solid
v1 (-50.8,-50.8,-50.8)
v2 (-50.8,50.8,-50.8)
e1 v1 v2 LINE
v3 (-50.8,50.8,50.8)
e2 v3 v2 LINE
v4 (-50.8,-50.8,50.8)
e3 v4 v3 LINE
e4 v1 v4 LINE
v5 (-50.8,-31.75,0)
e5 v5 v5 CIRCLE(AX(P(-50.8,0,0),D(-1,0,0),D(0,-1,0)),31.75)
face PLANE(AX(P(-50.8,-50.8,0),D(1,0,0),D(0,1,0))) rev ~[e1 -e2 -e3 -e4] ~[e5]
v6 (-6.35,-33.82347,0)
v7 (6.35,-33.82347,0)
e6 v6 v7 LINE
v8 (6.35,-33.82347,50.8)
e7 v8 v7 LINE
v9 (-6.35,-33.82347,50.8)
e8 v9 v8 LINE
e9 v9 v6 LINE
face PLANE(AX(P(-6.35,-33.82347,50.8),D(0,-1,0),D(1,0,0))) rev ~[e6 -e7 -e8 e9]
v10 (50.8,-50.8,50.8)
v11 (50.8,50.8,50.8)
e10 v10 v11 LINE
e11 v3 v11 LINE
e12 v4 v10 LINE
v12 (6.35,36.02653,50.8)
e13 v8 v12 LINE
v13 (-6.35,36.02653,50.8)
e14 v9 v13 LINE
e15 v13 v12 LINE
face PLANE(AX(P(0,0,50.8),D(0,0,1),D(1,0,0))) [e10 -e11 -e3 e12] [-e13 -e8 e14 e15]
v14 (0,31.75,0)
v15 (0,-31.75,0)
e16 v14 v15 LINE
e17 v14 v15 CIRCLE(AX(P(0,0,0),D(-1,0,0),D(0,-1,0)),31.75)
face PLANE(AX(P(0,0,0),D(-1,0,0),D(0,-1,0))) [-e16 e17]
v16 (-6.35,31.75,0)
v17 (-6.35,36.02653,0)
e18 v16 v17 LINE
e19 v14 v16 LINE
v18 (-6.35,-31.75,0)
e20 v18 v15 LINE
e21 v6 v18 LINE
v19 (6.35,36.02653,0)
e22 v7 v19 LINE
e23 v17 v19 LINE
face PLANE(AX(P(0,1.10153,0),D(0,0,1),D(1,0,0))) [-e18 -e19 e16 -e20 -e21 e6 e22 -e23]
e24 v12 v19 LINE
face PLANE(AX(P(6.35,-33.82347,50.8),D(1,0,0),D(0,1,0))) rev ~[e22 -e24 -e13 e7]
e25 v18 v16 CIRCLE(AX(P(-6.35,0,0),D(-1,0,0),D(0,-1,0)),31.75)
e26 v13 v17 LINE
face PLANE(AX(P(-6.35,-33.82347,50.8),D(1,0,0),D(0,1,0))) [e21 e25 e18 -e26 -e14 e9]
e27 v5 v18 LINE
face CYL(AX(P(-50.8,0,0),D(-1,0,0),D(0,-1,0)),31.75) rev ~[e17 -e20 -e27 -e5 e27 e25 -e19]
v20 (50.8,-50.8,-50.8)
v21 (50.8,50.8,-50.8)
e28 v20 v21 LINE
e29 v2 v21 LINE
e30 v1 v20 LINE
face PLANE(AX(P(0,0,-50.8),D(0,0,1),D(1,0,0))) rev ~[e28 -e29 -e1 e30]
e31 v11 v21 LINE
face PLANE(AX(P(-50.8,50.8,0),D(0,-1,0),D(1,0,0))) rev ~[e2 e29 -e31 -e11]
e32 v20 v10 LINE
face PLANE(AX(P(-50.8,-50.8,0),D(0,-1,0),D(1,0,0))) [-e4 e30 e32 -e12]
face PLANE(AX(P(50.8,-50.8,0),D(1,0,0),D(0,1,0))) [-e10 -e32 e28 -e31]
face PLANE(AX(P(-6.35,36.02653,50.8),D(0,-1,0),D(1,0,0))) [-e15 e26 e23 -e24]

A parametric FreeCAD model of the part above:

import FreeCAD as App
import Part
import Sketcher
from FreeCAD import Vector
Q = App.Units.Quantity

doc = App.newDocument("Part")
body = doc.addObject("PartDesign::Body", "Body")

sketch1 = body.newObject("Sketcher::SketchObject", "Sketch")
sketch1.AttachmentSupport = (doc.getObject("XY_Plane"), [""])
sketch1.MapMode = "FlatFace"
sketch1.addGeometry([
    Part.LineSegment(Vector(-51, 51, 0), Vector(-51, -51, 0)),
    Part.LineSegment(Vector(-51, -51, 0), Vector(51, -51, 0)),
    Part.LineSegment(Vector(51, -51, 0), Vector(51, 51, 0)),
    Part.LineSegment(Vector(51, 51, 0), Vector(-51, 51, 0)),
], False)
sketch1.addConstraint([
    Sketcher.Constraint("Coincident", 0, 2, 1, 1),
    Sketcher.Constraint("Coincident", 1, 2, 2, 1),
    Sketcher.Constraint("Coincident", 2, 2, 3, 1),
    Sketcher.Constraint("Coincident", 3, 2, 0, 1),
    Sketcher.Constraint("Vertical", 0),
    Sketcher.Constraint("Horizontal", 1),
    Sketcher.Constraint("Vertical", 2),
    Sketcher.Constraint("Horizontal", 3),
    Sketcher.Constraint("Symmetric", 0, 2, 2, 2, -1, 1),
    Sketcher.Constraint("Equal", 3, 0),
    Sketcher.Constraint("DistanceX", 1, 1, 1, 2, Q("4 in")),
])
pad1 = body.newObject("PartDesign::Pad", "Pad")
pad1.Profile = sketch1
pad1.Length = Q("4 in")
pad1.Midplane = True

sketch2 = body.newObject("Sketcher::SketchObject", "Sketch001")
sketch2.AttachmentSupport = (doc.getObject("XY_Plane"), [""])
sketch2.MapMode = "FlatFace"
sketch2.AttachmentOffset = App.Placement(Vector(0, 0, 2 * 25.4), App.Rotation())
sketch2.addGeometry([
    Part.LineSegment(Vector(-6, 36, 0), Vector(-6, -34, 0)),
    Part.LineSegment(Vector(-6, -34, 0), Vector(6, -34, 0)),
    Part.LineSegment(Vector(6, -34, 0), Vector(6, 36, 0)),
    Part.LineSegment(Vector(6, 36, 0), Vector(-6, 36, 0)),
], False)
sketch2.addConstraint([
    Sketcher.Constraint("Coincident", 0, 2, 1, 1),
    Sketcher.Constraint("Coincident", 1, 2, 2, 1),
    Sketcher.Constraint("Coincident", 2, 2, 3, 1),
    Sketcher.Constraint("Coincident", 3, 2, 0, 1),
    Sketcher.Constraint("Vertical", 0),
    Sketcher.Constraint("Horizontal", 1),
    Sketcher.Constraint("Vertical", 2),
    Sketcher.Constraint("Horizontal", 3),
    Sketcher.Constraint("DistanceX", 1, 1, 1, 2, Q("0.5 in")),
    Sketcher.Constraint("DistanceY", 0, 2, 0, 1, Q("2.75 in")),
    Sketcher.Constraint("DistanceX", 0, 2, -1, 1, Q("0.25 in")),
    Sketcher.Constraint("DistanceY", 0, 2, -1, 1, Q("33.82347 mm")),
])
pocket1 = body.newObject("PartDesign::Pocket", "Pocket")
pocket1.Profile = sketch2
pocket1.Length = Q("2 in")

sketch3 = body.newObject("Sketcher::SketchObject", "Sketch002")
sketch3.AttachmentSupport = (doc.getObject("YZ_Plane"), [""])
sketch3.MapMode = "FlatFace"
sketch3.AttachmentOffset = App.Placement(Vector(0, 0, -2 * 25.4), App.Rotation())
sketch3.addGeometry(Part.Circle(Vector(0, 0, 0), Vector(0, 0, 1), 32), False)
sketch3.addConstraint([
    Sketcher.Constraint("Coincident", 0, 3, -1, 1),
    Sketcher.Constraint("Diameter", 0, Q("2.5 in")),
])
pocket2 = body.newObject("PartDesign::Pocket", "Pocket001")
pocket2.Profile = sketch3
pocket2.Length = Q("2 in")
pocket2.Reversed = True

doc.recompute()
